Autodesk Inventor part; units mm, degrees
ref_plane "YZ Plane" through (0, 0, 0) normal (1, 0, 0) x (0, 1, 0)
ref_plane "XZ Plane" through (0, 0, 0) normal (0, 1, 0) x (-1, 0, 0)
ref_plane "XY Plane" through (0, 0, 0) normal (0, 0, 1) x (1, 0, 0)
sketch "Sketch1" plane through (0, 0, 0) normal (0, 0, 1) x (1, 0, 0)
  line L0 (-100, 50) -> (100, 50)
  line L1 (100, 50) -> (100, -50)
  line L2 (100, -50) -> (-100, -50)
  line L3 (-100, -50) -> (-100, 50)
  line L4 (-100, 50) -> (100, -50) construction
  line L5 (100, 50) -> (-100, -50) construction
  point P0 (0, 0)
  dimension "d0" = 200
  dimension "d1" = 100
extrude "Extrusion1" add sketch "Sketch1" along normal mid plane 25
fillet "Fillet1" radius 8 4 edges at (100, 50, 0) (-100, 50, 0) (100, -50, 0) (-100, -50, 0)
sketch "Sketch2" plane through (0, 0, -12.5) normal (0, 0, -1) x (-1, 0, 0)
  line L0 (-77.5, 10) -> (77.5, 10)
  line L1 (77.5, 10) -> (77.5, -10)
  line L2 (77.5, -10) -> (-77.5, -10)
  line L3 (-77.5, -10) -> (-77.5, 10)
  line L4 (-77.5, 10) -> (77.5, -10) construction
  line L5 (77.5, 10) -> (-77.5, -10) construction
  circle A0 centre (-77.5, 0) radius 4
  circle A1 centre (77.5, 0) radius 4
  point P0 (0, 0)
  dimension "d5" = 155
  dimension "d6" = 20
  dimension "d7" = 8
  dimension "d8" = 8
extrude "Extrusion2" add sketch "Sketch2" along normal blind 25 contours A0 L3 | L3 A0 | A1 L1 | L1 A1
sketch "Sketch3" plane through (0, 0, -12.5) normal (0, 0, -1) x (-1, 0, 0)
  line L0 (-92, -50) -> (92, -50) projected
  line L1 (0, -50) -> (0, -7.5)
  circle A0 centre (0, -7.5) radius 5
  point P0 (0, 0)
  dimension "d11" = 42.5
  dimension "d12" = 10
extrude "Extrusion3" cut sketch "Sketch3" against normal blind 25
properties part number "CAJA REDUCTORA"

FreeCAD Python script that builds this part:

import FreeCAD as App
import Part
import Sketcher


def edges_at(feature, points):
    """Names of the edges that pass closest to the given points."""
    edges = feature.Shape.Edges
    near = lambda p: min(range(len(edges)), key=lambda i: edges[i].distToShape(Part.Vertex(*p))[0])
    return sorted({f"Edge{near(p) + 1}" for p in points})


def add_polygon(sketch, points):
    """Adds a closed chain of lines whose ends are joined by coincident constraints."""
    first, n = sketch.GeometryCount, len(points)
    for a, b in zip(points, points[1:] + points[:1]):
        sketch.addGeometry(Part.LineSegment(App.Vector(*a, 0), App.Vector(*b, 0)), False)
    for i in range(n):
        sketch.addConstraint(Sketcher.Constraint("Coincident", first + i, 2, first + (i + 1) % n, 1))

doc = App.newDocument("Part")
body = doc.addObject("PartDesign::Body", "Body")

sketch1 = body.newObject("Sketcher::SketchObject", "Sketch")
sketch1.AttachmentSupport = (doc.getObject("XY_Plane"), [""])
sketch1.MapMode = "FlatFace"
add_polygon(sketch1, [(100, 50), (-100, 50), (-100, -50), (100, -50)])
sketch1.addConstraint([
    Sketcher.Constraint("Horizontal", 0),
    Sketcher.Constraint("Vertical", 1),
    Sketcher.Constraint("Horizontal", 2),
    Sketcher.Constraint("Vertical", 3),
    Sketcher.Constraint("Symmetric", 0, 2, 2, 2, -1, 1),
    Sketcher.Constraint("DistanceX", 0, 2, 0, 1, 200.0),
    Sketcher.Constraint("DistanceY", 1, 2, 1, 1, 100.0),
])
pad1 = body.newObject("PartDesign::Pad", "Pad")
pad1.Profile = sketch1
pad1.Length = 25
pad1.Midplane = True
doc.recompute()

fillet = body.newObject("PartDesign::Fillet", "Fillet")
fillet.Base = (pad1, edges_at(pad1, [
    (100, 50, 0),
    (-100, 50, 0),
    (100, -50, 0),
    (-100, -50, 0),
]))
fillet.Radius = 8

sketch2 = body.newObject("Sketcher::SketchObject", "Sketch001")
sketch2.AttachmentSupport = (doc.getObject("XY_Plane"), [""])
sketch2.MapMode = "FlatFace"
sketch2.AttachmentOffset = App.Placement(App.Vector(0, 0, -12.5), App.Rotation())
sketch2.addGeometry([
    Part.Circle(App.Vector(77.5, 0, 0), App.Vector(0, 0, 1), 4),
    Part.Circle(App.Vector(-77.5, 0, 0), App.Vector(0, 0, 1), 4),
], False)
sketch2.addConstraint([
    Sketcher.Constraint("Equal", 0, 1),
    Sketcher.Constraint("Symmetric", 0, 3, 1, 3, -1, 1),
    Sketcher.Constraint("PointOnObject", 0, 3, -1),
    Sketcher.Constraint("Diameter", 0, 8.0),
    Sketcher.Constraint("DistanceX", 1, 3, 0, 3, 155.0),
])
pad2 = body.newObject("PartDesign::Pad", "Pad001")
pad2.Profile = sketch2
pad2.Length = 25
pad2.Reversed = True

sketch3 = body.newObject("Sketcher::SketchObject", "Sketch002")
sketch3.AttachmentSupport = (doc.getObject("XY_Plane"), [""])
sketch3.MapMode = "FlatFace"
sketch3.AttachmentOffset = App.Placement(App.Vector(0, 0, -12.5), App.Rotation())
sketch3.addGeometry(Part.Circle(App.Vector(0, -8, 0), App.Vector(0, 0, 1), 5), False)
sketch3.addConstraint([
    Sketcher.Constraint("PointOnObject", 0, 3, -2),
    Sketcher.Constraint("Diameter", 0, 10.0),
    Sketcher.Constraint("DistanceY", 0, 3, -1, 1, 7.5),
])
pocket1 = body.newObject("PartDesign::Pocket", "Pocket")
pocket1.Profile = sketch3
pocket1.Length = 25
pocket1.Reversed = True

doc.recompute()
